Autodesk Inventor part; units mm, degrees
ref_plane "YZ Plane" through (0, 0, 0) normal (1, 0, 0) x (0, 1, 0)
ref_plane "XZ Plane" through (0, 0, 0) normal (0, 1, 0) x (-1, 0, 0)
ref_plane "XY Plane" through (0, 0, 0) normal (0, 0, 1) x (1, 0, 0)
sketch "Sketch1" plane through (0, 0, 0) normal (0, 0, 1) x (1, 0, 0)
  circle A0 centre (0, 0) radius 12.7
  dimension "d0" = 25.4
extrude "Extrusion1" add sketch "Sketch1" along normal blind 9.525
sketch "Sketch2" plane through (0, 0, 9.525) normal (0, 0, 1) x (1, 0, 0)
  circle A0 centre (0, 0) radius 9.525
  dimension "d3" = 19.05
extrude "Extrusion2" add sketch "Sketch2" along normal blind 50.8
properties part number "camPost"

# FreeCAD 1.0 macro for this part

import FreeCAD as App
import Part
import Sketcher

V = App.Vector
Q = App.Units.Quantity

doc = App.newDocument("Part")
params = doc.addObject("Spreadsheet::Sheet", "Params")
for row, (alias, value) in enumerate([
    ("sketch1_diameter", "1 in"),
    ("pad1_length", "0.375 in"),
    ("sketch2_diameter", "0.75 in"),
    ("pad2_length", "2 in"),
], start=1):
    params.set(f"A{row}", alias)
    params.set(f"B{row}", "=" + value)
    params.setAlias(f"B{row}", alias)

body = doc.addObject("PartDesign::Body", "Body")

sketch1 = doc.addObject("Sketcher::SketchObject", "Sketch")
body.addObject(sketch1)
sketch1.AttachmentSupport = (doc.XY_Plane, [""])
sketch1.MapMode = "FlatFace"
sketch1.addGeometry(Part.Circle(V(0, 0, 0), V(0, 0, 1), 12.7), False)
sketch1.addConstraint([
    Sketcher.Constraint("Coincident", 0, 3, -1, 1),
    Sketcher.Constraint("Diameter", 0, Q("1 in")),
])
sketch1.setExpression("Constraints[1]", "Params.sketch1_diameter")
pad1 = doc.addObject("PartDesign::Pad", "Pad")
body.addObject(pad1)
pad1.Profile = sketch1
pad1.setExpression("Length", "Params.pad1_length")

sketch2 = doc.addObject("Sketcher::SketchObject", "Sketch001")
body.addObject(sketch2)
sketch2.AttachmentSupport = (doc.XY_Plane, [""])
sketch2.MapMode = "FlatFace"
sketch2.AttachmentOffset = App.Placement(V(0, 0, 0.375 * 25.4), App.Rotation())
sketch2.addGeometry(Part.Circle(V(0, 0, 0), V(0, 0, 1), 9.525), False)
sketch2.addConstraint([
    Sketcher.Constraint("Coincident", 0, 3, -1, 1),
    Sketcher.Constraint("Diameter", 0, Q("0.75 in")),
])
sketch2.setExpression("Constraints[1]", "Params.sketch2_diameter")
pad2 = doc.addObject("PartDesign::Pad", "Pad001")
body.addObject(pad2)
pad2.Profile = sketch2
pad2.setExpression("Length", "Params.pad2_length")

doc.recompute()
